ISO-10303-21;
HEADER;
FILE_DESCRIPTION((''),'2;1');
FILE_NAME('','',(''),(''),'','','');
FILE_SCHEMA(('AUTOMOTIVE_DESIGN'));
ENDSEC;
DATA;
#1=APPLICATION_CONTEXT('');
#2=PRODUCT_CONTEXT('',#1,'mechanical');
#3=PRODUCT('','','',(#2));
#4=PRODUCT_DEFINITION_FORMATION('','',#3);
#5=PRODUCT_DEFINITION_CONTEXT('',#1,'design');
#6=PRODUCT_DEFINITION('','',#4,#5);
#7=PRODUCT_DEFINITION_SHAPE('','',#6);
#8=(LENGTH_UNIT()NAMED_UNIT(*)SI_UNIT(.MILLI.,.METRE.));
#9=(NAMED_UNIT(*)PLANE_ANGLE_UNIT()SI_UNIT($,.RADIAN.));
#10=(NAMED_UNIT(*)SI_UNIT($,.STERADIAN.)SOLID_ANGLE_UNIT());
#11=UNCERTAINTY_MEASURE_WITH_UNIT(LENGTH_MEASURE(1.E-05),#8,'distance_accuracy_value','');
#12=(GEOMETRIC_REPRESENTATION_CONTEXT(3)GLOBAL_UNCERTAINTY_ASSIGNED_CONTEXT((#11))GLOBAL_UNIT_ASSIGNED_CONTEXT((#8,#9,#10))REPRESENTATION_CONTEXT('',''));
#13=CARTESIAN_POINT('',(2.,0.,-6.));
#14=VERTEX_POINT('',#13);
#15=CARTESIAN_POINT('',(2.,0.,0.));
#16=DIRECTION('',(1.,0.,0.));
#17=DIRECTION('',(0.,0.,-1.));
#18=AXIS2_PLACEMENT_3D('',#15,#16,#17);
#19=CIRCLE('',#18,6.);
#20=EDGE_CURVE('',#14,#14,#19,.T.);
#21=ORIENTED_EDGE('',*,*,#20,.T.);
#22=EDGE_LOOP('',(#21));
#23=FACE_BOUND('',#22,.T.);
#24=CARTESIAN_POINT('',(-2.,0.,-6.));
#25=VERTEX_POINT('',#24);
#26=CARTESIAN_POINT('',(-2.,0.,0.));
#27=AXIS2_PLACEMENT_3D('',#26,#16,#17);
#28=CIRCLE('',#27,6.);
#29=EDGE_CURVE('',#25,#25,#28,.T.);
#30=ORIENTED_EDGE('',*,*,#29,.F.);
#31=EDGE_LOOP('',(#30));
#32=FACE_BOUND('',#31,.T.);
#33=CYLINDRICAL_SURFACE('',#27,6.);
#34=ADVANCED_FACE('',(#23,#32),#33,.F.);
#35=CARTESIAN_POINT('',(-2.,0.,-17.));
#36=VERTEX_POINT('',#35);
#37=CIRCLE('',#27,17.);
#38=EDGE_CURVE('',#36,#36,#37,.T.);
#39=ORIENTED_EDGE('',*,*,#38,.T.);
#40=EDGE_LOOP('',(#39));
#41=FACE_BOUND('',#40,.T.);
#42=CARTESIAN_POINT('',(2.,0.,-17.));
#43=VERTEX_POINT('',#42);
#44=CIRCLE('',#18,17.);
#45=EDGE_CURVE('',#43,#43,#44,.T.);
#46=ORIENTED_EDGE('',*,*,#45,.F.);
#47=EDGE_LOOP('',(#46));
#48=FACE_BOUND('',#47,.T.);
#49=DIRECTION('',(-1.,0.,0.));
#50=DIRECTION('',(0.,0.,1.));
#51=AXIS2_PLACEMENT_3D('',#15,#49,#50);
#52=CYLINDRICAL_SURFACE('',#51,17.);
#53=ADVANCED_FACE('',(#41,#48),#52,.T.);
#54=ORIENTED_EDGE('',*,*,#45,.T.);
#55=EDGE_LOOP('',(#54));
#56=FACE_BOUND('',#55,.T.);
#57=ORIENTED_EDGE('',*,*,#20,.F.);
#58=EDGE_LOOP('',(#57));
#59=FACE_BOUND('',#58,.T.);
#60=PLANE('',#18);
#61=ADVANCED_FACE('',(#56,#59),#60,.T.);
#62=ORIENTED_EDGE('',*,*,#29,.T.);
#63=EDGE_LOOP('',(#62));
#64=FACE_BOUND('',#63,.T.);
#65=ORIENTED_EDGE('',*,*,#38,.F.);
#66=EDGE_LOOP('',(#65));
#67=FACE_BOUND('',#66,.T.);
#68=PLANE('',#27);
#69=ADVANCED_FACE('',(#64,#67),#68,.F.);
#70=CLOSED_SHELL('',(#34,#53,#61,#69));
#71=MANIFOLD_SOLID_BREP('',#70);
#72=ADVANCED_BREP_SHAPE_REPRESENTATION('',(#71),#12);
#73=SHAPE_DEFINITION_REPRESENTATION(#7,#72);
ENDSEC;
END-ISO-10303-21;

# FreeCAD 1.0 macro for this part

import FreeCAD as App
import Part
import Sketcher
Q = App.Units.Quantity

doc = App.newDocument("Part")
body = doc.addObject("PartDesign::Body", "Body")

# Sketch on YZ plane
sketch1 = body.newObject("Sketcher::SketchObject", "Sketch")
sketch1.AttachmentSupport = (doc.getObject("YZ_Plane"), [""])
sketch1.MapMode = "FlatFace"
sketch1.addGeometry(Part.Circle(App.Vector(0, 0, 0), App.Vector(0, 0, 1), 17), False)
sketch1.addConstraint([
    Sketcher.Constraint("Coincident", 0, 3, -1, 1),
    Sketcher.Constraint("Diameter", 0, Q("34 mm")),
])
pad1 = body.newObject("PartDesign::Pad", "Pad")
pad1.Profile = sketch1
pad1.Length = 4
pad1.Midplane = True

# Sketch on YZ plane
sketch2 = body.newObject("Sketcher::SketchObject", "Sketch001")
sketch2.AttachmentSupport = (doc.getObject("YZ_Plane"), [""])
sketch2.MapMode = "FlatFace"
sketch2.addGeometry(Part.Circle(App.Vector(0, 0, 0), App.Vector(0, 0, 1), 6), False)
sketch2.addConstraint([
    Sketcher.Constraint("Coincident", 0, 3, -1, 1),
    Sketcher.Constraint("Diameter", 0, Q("12 mm")),
])
pocket1 = body.newObject("PartDesign::Pocket", "Pocket")
pocket1.Profile = sketch2
pocket1.Type = "ThroughAll"
pocket1.Midplane = True

doc.recompute()
